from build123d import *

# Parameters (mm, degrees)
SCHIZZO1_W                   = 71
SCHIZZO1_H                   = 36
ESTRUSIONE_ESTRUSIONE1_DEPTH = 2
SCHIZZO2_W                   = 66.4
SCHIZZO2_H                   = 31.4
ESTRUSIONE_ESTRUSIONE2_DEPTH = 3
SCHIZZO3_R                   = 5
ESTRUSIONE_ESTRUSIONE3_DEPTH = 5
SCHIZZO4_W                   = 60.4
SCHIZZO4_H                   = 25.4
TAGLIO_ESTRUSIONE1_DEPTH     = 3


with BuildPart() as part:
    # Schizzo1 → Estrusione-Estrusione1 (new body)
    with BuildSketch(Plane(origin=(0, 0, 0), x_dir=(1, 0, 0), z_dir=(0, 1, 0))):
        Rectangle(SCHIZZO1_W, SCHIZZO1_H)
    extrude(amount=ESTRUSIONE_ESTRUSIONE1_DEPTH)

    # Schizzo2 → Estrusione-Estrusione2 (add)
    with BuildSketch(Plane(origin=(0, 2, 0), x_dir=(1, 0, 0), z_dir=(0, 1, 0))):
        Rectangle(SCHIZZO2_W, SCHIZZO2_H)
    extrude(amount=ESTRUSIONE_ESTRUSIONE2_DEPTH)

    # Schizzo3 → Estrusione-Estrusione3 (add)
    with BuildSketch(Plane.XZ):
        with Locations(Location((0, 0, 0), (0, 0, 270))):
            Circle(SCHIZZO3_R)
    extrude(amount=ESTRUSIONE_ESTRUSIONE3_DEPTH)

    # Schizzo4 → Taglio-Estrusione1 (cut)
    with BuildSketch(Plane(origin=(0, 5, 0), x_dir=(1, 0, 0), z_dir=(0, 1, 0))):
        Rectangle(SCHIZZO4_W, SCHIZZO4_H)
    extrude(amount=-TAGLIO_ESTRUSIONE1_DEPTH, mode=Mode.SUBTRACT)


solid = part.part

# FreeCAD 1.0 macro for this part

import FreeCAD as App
import Part
import Sketcher

doc = App.newDocument("Part")
body = doc.addObject("PartDesign::Body", "Body")

sketch1 = body.newObject("Sketcher::SketchObject", "Sketch")
sketch1.AttachmentSupport = (doc.getObject("XZ_Plane"), [""])
sketch1.MapMode = "FlatFace"
sketch1.addGeometry([
    Part.LineSegment(App.Vector(-36, -18, 0), App.Vector(-36, 18, 0)),
    Part.LineSegment(App.Vector(-36, 18, 0), App.Vector(36, 18, 0)),
    Part.LineSegment(App.Vector(36, 18, 0), App.Vector(36, -18, 0)),
    Part.LineSegment(App.Vector(36, -18, 0), App.Vector(-36, -18, 0)),
], False)
sketch1.addConstraint([
    Sketcher.Constraint("Coincident", 0, 2, 1, 1),
    Sketcher.Constraint("Coincident", 1, 2, 2, 1),
    Sketcher.Constraint("Coincident", 2, 2, 3, 1),
    Sketcher.Constraint("Coincident", 3, 2, 0, 1),
    Sketcher.Constraint("Vertical", 0),
    Sketcher.Constraint("Horizontal", 1),
    Sketcher.Constraint("Vertical", 2),
    Sketcher.Constraint("Horizontal", 3),
    Sketcher.Constraint("Symmetric", 0, 2, 2, 2, -1, 1),
    Sketcher.Constraint("DistanceX", 1, 1, 1, 2, 71.0),
    Sketcher.Constraint("DistanceY", 0, 1, 0, 2, 36.0),
])
pad1 = body.newObject("PartDesign::Pad", "Pad")
pad1.Profile = sketch1
pad1.Length = 2
pad1.Reversed = True

sketch2 = body.newObject("Sketcher::SketchObject", "Sketch001")
sketch2.AttachmentSupport = (doc.getObject("XZ_Plane"), [""])
sketch2.MapMode = "FlatFace"
sketch2.AttachmentOffset = App.Placement(App.Vector(0, 0, -2), App.Rotation())
sketch2.addGeometry([
    Part.LineSegment(App.Vector(-33, -16, 0), App.Vector(-33, 16, 0)),
    Part.LineSegment(App.Vector(-33, 16, 0), App.Vector(33, 16, 0)),
    Part.LineSegment(App.Vector(33, 16, 0), App.Vector(33, -16, 0)),
    Part.LineSegment(App.Vector(33, -16, 0), App.Vector(-33, -16, 0)),
], False)
sketch2.addConstraint([
    Sketcher.Constraint("Coincident", 0, 2, 1, 1),
    Sketcher.Constraint("Coincident", 1, 2, 2, 1),
    Sketcher.Constraint("Coincident", 2, 2, 3, 1),
    Sketcher.Constraint("Coincident", 3, 2, 0, 1),
    Sketcher.Constraint("Vertical", 0),
    Sketcher.Constraint("Horizontal", 1),
    Sketcher.Constraint("Vertical", 2),
    Sketcher.Constraint("Horizontal", 3),
    Sketcher.Constraint("Symmetric", 0, 2, 2, 2, -1, 1),
    Sketcher.Constraint("DistanceX", 1, 1, 1, 2, 66.4),
    Sketcher.Constraint("DistanceY", 0, 1, 0, 2, 31.4),
])
pad2 = body.newObject("PartDesign::Pad", "Pad001")
pad2.Profile = sketch2
pad2.Length = 3
pad2.Reversed = True

sketch3 = body.newObject("Sketcher::SketchObject", "Sketch002")
sketch3.AttachmentSupport = (doc.getObject("XZ_Plane"), [""])
sketch3.MapMode = "FlatFace"
sketch3.addGeometry(Part.Circle(App.Vector(0, 0, 0), App.Vector(0, 0, 1), 5), False)
sketch3.addConstraint([
    Sketcher.Constraint("Coincident", 0, 3, -1, 1),
    Sketcher.Constraint("Diameter", 0, 10.0),
])
pad3 = body.newObject("PartDesign::Pad", "Pad002")
pad3.Profile = sketch3
pad3.Length = 5

sketch4 = body.newObject("Sketcher::SketchObject", "Sketch003")
sketch4.AttachmentSupport = (doc.getObject("XZ_Plane"), [""])
sketch4.MapMode = "FlatFace"
sketch4.AttachmentOffset = App.Placement(App.Vector(0, 0, -5), App.Rotation())
sketch4.addGeometry([
    Part.LineSegment(App.Vector(-30, -13, 0), App.Vector(-30, 13, 0)),
    Part.LineSegment(App.Vector(-30, 13, 0), App.Vector(30, 13, 0)),
    Part.LineSegment(App.Vector(30, 13, 0), App.Vector(30, -13, 0)),
    Part.LineSegment(App.Vector(30, -13, 0), App.Vector(-30, -13, 0)),
], False)
sketch4.addConstraint([
    Sketcher.Constraint("Coincident", 0, 2, 1, 1),
    Sketcher.Constraint("Coincident", 1, 2, 2, 1),
    Sketcher.Constraint("Coincident", 2, 2, 3, 1),
    Sketcher.Constraint("Coincident", 3, 2, 0, 1),
    Sketcher.Constraint("Vertical", 0),
    Sketcher.Constraint("Horizontal", 1),
    Sketcher.Constraint("Vertical", 2),
    Sketcher.Constraint("Horizontal", 3),
    Sketcher.Constraint("Symmetric", 0, 2, 2, 2, -1, 1),
    Sketcher.Constraint("DistanceX", 1, 1, 1, 2, 60.4),
    Sketcher.Constraint("DistanceY", 0, 1, 0, 2, 25.4),
])
pocket1 = body.newObject("PartDesign::Pocket", "Pocket")
pocket1.Profile = sketch4
pocket1.Length = 3
pocket1.Reversed = True

doc.recompute()
